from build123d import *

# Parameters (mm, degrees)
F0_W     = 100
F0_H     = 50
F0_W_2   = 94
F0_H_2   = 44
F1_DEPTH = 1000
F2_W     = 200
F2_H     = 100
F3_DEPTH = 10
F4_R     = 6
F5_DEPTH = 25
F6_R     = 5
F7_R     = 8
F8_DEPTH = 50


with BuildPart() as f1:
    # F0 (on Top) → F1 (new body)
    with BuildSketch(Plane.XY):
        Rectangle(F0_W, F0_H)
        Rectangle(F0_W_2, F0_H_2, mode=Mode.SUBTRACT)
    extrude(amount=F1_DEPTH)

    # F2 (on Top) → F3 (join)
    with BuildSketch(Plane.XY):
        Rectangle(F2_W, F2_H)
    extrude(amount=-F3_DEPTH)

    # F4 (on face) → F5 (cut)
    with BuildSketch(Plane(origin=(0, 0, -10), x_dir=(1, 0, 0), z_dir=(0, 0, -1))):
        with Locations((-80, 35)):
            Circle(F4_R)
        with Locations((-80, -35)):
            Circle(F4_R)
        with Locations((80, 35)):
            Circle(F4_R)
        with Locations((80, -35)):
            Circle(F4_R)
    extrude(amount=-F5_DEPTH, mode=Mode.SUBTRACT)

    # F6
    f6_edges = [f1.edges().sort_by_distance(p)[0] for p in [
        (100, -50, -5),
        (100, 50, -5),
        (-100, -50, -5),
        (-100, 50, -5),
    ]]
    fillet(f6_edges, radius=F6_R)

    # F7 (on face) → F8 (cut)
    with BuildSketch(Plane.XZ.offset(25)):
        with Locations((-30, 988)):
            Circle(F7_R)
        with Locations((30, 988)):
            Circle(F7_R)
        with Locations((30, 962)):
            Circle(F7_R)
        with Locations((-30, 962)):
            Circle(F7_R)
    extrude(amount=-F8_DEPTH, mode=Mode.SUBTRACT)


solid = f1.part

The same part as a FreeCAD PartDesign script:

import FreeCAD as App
import Part
import Sketcher
from FreeCAD import Vector
Q = App.Units.Quantity


def edges_at(feature, points):
    """Names of the edges that pass closest to the given points."""
    edges = feature.Shape.Edges
    near = lambda p: min(range(len(edges)), key=lambda i: edges[i].distToShape(Part.Vertex(*p))[0])
    return sorted({f"Edge{near(p) + 1}" for p in points})


def add_polygon(sketch, points):
    """Adds a closed chain of lines whose ends are joined by coincident constraints."""
    first, n = sketch.GeometryCount, len(points)
    for a, b in zip(points, points[1:] + points[:1]):
        sketch.addGeometry(Part.LineSegment(App.Vector(*a, 0), App.Vector(*b, 0)), False)
    for i in range(n):
        sketch.addConstraint(Sketcher.Constraint("Coincident", first + i, 2, first + (i + 1) % n, 1))

doc = App.newDocument("Part")
body = doc.addObject("PartDesign::Body", "Body")

# Sketch on XY plane
sketch1 = doc.addObject("Sketcher::SketchObject", "Sketch")
body.addObject(sketch1)
sketch1.AttachmentSupport = (doc.XY_Plane, [""])
sketch1.MapMode = "FlatFace"
add_polygon(sketch1, [(-50, 25), (-50, -25), (50, -25), (50, 25)])  # lines 0-3
add_polygon(sketch1, [(47, -22), (-47, -22), (-47, 22), (47, 22)])  # lines 4-7
sketch1.addConstraint(Sketcher.Constraint("Vertical", 0))
sketch1.addConstraint(Sketcher.Constraint("Horizontal", 1))
sketch1.addConstraint(Sketcher.Constraint("Vertical", 2))
sketch1.addConstraint(Sketcher.Constraint("Horizontal", 3))
sketch1.addConstraint(Sketcher.Constraint("Horizontal", 4))
sketch1.addConstraint(Sketcher.Constraint("Vertical", 5))
sketch1.addConstraint(Sketcher.Constraint("Horizontal", 6))
sketch1.addConstraint(Sketcher.Constraint("Vertical", 7))
sketch1.addConstraint(Sketcher.Constraint("Symmetric", 0, 2, 2, 2, -1, 1))
sketch1.addConstraint(Sketcher.Constraint("Symmetric", 4, 2, 6, 2, -1, 1))
sketch1.addConstraint(Sketcher.Constraint("DistanceX", 1, 1, 1, 2, Q("100 mm")))
sketch1.addConstraint(Sketcher.Constraint("DistanceX", 4, 2, 4, 1, Q("94 mm")))
sketch1.addConstraint(Sketcher.Constraint("DistanceY", 0, 2, 0, 1, Q("50 mm")))
sketch1.addConstraint(Sketcher.Constraint("DistanceY", 5, 1, 5, 2, Q("44 mm")))
pad1 = doc.addObject("PartDesign::Pad", "Pad")
body.addObject(pad1)
pad1.Profile = sketch1
pad1.Length = 1000

# Sketch on XY plane
sketch2 = doc.addObject("Sketcher::SketchObject", "Sketch001")
body.addObject(sketch2)
sketch2.AttachmentSupport = (doc.XY_Plane, [""])
sketch2.MapMode = "FlatFace"
add_polygon(sketch2, [(-100, 50), (-100, -50), (100, -50), (100, 50)])  # lines 0-3
sketch2.addConstraint(Sketcher.Constraint("Vertical", 0))
sketch2.addConstraint(Sketcher.Constraint("Horizontal", 1))
sketch2.addConstraint(Sketcher.Constraint("Vertical", 2))
sketch2.addConstraint(Sketcher.Constraint("Horizontal", 3))
sketch2.addConstraint(Sketcher.Constraint("Symmetric", 0, 2, 2, 2, -1, 1))
sketch2.addConstraint(Sketcher.Constraint("DistanceX", 1, 1, 1, 2, Q("200 mm")))
sketch2.addConstraint(Sketcher.Constraint("DistanceY", 0, 2, 0, 1, Q("100 mm")))
pad2 = doc.addObject("PartDesign::Pad", "Pad001")
body.addObject(pad2)
pad2.Profile = sketch2
pad2.Length = 10
pad2.Reversed = True

# Sketch on XY plane
sketch3 = doc.addObject("Sketcher::SketchObject", "Sketch002")
body.addObject(sketch3)
sketch3.AttachmentSupport = (doc.XY_Plane, [""])
sketch3.MapMode = "FlatFace"
sketch3.AttachmentOffset = App.Placement(Vector(0, 0, -10), App.Rotation())
sketch3.addGeometry(Part.Circle(Vector(-80, -35, 0), Vector(0, 0, 1), 6), False)
sketch3.addGeometry(Part.Circle(Vector(-80, 35, 0), Vector(0, 0, 1), 6), False)
sketch3.addGeometry(Part.Circle(Vector(80, -35, 0), Vector(0, 0, 1), 6), False)
sketch3.addGeometry(Part.Circle(Vector(80, 35, 0), Vector(0, 0, 1), 6), False)
sketch3.addConstraint(Sketcher.Constraint("Equal", 0, 1))
sketch3.addConstraint(Sketcher.Constraint("Equal", 1, 2))
sketch3.addConstraint(Sketcher.Constraint("Equal", 2, 3))
sketch3.addConstraint(Sketcher.Constraint("Symmetric", 1, 3, 2, 3, -1, 1))
sketch3.addConstraint(Sketcher.Constraint("Symmetric", 0, 3, 3, 3, -1, 1))
sketch3.addConstraint(Sketcher.Constraint("Symmetric", 0, 3, 2, 3, -2))
sketch3.addConstraint(Sketcher.Constraint("Diameter", 0, Q("12 mm")))
sketch3.addConstraint(Sketcher.Constraint("DistanceX", 0, 3, -1, 1, Q("80 mm")))
sketch3.addConstraint(Sketcher.Constraint("DistanceY", 0, 3, -1, 1, Q("35 mm")))
pocket1 = doc.addObject("PartDesign::Pocket", "Pocket")
body.addObject(pocket1)
pocket1.Profile = sketch3
pocket1.Length = 25
pocket1.Reversed = True
doc.recompute()

fillet = doc.addObject("PartDesign::Fillet", "Fillet")
body.addObject(fillet)
fillet.Base = (pocket1, edges_at(pocket1, [
    (100, -50, -5),
    (100, 50, -5),
    (-100, -50, -5),
    (-100, 50, -5),
]))
fillet.Radius = 5

# Sketch on XZ plane
sketch4 = doc.addObject("Sketcher::SketchObject", "Sketch003")
body.addObject(sketch4)
sketch4.AttachmentSupport = (doc.XZ_Plane, [""])
sketch4.MapMode = "FlatFace"
sketch4.AttachmentOffset = App.Placement(Vector(0, 0, 25), App.Rotation())
sketch4.addGeometry(Part.Circle(Vector(-30, 988, 0), Vector(0, 0, 1), 8), False)
sketch4.addGeometry(Part.Circle(Vector(30, 988, 0), Vector(0, 0, 1), 8), False)
sketch4.addGeometry(Part.Circle(Vector(30, 962, 0), Vector(0, 0, 1), 8), False)
sketch4.addGeometry(Part.Circle(Vector(-30, 962, 0), Vector(0, 0, 1), 8), False)
sketch4.addConstraint(Sketcher.Constraint("Equal", 0, 1))
sketch4.addConstraint(Sketcher.Constraint("Equal", 1, 2))
sketch4.addConstraint(Sketcher.Constraint("Equal", 2, 3))
sketch4.addConstraint(Sketcher.Constraint("Symmetric", 0, 3, 1, 3, -2))
sketch4.addConstraint(Sketcher.Constraint("Symmetric", 2, 3, 3, 3, -2))
sketch4.addConstraint(Sketcher.Constraint("Vertical", 1, 3, 2, 3))
sketch4.addConstraint(Sketcher.Constraint("Diameter", 0, Q("16 mm")))
sketch4.addConstraint(Sketcher.Constraint("DistanceX", 0, 3, -1, 1, Q("30 mm")))
sketch4.addConstraint(Sketcher.Constraint("DistanceY", -1, 1, 0, 3, Q("988 mm")))
sketch4.addConstraint(Sketcher.Constraint("DistanceY", -1, 1, 2, 3, Q("962 mm")))
pocket2 = doc.addObject("PartDesign::Pocket", "Pocket001")
body.addObject(pocket2)
pocket2.Profile = sketch4
pocket2.Length = 50

doc.recompute()
